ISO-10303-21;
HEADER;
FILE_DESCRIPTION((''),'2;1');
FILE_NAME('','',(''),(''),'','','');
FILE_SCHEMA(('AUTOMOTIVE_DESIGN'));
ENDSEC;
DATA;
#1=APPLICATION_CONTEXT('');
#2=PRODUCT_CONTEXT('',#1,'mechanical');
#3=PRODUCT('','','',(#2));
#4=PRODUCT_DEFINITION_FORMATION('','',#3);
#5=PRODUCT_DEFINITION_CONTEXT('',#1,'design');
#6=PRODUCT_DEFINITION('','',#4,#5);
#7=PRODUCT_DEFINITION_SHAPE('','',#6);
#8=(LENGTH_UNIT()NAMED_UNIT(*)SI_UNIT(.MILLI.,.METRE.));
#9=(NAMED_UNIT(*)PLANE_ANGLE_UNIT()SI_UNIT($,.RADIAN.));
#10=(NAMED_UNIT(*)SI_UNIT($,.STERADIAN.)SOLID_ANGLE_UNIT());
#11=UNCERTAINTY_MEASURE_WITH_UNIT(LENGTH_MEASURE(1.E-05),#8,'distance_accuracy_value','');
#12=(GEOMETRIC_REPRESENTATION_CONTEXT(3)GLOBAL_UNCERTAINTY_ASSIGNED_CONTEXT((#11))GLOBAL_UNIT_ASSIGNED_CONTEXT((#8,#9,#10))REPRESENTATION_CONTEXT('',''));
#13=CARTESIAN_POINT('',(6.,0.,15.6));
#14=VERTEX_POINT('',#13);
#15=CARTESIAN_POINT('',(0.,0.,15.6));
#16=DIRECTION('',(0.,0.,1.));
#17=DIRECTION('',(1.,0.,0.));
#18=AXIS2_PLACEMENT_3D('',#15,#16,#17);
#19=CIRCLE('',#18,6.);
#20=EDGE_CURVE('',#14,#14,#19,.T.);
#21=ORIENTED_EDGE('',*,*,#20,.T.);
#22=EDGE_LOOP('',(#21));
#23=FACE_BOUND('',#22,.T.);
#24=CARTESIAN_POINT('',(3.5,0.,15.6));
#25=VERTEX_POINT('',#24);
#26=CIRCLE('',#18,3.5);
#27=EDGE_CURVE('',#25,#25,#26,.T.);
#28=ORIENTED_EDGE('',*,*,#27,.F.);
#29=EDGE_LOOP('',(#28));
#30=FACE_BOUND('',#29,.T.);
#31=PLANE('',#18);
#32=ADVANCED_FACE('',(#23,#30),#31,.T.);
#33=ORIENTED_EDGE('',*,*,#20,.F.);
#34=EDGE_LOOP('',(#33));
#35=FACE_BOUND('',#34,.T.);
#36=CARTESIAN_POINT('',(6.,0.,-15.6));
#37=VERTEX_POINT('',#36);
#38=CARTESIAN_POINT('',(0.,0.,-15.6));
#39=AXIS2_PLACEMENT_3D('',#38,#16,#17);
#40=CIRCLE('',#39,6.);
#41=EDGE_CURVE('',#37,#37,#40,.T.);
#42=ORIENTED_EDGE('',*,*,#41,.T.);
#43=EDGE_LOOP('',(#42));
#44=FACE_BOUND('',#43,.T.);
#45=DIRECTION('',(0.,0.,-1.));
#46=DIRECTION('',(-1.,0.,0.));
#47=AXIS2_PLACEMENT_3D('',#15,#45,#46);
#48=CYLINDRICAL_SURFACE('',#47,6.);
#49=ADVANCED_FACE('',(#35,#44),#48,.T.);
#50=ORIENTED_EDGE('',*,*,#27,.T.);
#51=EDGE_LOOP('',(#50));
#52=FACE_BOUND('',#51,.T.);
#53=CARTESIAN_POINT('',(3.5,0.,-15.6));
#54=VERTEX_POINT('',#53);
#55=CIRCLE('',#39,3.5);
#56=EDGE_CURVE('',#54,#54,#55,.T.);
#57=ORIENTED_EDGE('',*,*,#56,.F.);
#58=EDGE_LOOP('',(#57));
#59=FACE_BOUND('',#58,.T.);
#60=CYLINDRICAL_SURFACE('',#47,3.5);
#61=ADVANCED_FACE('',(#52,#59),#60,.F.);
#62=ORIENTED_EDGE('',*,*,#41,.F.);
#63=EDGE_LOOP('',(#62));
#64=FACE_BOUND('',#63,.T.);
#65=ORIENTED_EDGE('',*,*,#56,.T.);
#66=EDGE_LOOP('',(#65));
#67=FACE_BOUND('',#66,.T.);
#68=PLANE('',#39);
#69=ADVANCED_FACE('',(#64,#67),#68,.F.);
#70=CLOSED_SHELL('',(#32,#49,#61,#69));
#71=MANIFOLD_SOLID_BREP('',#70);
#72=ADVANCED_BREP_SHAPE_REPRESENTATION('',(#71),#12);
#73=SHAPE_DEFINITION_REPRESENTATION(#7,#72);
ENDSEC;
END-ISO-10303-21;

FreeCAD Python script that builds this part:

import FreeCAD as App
import Part
import Sketcher
from FreeCAD import Vector
Q = App.Units.Quantity

doc = App.newDocument("Part")
body = doc.addObject("PartDesign::Body", "Body")

# Sketch on XY plane
sketch1 = body.newObject("Sketcher::SketchObject", "Sketch")
sketch1.AttachmentSupport = (doc.getObject("XY_Plane"), [""])
sketch1.MapMode = "FlatFace"
sketch1.addGeometry([
    Part.Circle(Vector(0, 0, 0), Vector(0, 0, 1), 6),
    Part.Circle(Vector(0, 0, 0), Vector(0, 0, 1), 3.5),
], False)
sketch1.addConstraint([
    Sketcher.Constraint("Coincident", 0, 3, -1, 1),
    Sketcher.Constraint("Coincident", 1, 3, -1, 1),
    Sketcher.Constraint("Diameter", 0, Q("12 mm")),
    Sketcher.Constraint("Diameter", 1, Q("7 mm")),
])
pad1 = body.newObject("PartDesign::Pad", "Pad")
pad1.Profile = sketch1
pad1.Length = 31.2
pad1.Midplane = True

doc.recompute()
